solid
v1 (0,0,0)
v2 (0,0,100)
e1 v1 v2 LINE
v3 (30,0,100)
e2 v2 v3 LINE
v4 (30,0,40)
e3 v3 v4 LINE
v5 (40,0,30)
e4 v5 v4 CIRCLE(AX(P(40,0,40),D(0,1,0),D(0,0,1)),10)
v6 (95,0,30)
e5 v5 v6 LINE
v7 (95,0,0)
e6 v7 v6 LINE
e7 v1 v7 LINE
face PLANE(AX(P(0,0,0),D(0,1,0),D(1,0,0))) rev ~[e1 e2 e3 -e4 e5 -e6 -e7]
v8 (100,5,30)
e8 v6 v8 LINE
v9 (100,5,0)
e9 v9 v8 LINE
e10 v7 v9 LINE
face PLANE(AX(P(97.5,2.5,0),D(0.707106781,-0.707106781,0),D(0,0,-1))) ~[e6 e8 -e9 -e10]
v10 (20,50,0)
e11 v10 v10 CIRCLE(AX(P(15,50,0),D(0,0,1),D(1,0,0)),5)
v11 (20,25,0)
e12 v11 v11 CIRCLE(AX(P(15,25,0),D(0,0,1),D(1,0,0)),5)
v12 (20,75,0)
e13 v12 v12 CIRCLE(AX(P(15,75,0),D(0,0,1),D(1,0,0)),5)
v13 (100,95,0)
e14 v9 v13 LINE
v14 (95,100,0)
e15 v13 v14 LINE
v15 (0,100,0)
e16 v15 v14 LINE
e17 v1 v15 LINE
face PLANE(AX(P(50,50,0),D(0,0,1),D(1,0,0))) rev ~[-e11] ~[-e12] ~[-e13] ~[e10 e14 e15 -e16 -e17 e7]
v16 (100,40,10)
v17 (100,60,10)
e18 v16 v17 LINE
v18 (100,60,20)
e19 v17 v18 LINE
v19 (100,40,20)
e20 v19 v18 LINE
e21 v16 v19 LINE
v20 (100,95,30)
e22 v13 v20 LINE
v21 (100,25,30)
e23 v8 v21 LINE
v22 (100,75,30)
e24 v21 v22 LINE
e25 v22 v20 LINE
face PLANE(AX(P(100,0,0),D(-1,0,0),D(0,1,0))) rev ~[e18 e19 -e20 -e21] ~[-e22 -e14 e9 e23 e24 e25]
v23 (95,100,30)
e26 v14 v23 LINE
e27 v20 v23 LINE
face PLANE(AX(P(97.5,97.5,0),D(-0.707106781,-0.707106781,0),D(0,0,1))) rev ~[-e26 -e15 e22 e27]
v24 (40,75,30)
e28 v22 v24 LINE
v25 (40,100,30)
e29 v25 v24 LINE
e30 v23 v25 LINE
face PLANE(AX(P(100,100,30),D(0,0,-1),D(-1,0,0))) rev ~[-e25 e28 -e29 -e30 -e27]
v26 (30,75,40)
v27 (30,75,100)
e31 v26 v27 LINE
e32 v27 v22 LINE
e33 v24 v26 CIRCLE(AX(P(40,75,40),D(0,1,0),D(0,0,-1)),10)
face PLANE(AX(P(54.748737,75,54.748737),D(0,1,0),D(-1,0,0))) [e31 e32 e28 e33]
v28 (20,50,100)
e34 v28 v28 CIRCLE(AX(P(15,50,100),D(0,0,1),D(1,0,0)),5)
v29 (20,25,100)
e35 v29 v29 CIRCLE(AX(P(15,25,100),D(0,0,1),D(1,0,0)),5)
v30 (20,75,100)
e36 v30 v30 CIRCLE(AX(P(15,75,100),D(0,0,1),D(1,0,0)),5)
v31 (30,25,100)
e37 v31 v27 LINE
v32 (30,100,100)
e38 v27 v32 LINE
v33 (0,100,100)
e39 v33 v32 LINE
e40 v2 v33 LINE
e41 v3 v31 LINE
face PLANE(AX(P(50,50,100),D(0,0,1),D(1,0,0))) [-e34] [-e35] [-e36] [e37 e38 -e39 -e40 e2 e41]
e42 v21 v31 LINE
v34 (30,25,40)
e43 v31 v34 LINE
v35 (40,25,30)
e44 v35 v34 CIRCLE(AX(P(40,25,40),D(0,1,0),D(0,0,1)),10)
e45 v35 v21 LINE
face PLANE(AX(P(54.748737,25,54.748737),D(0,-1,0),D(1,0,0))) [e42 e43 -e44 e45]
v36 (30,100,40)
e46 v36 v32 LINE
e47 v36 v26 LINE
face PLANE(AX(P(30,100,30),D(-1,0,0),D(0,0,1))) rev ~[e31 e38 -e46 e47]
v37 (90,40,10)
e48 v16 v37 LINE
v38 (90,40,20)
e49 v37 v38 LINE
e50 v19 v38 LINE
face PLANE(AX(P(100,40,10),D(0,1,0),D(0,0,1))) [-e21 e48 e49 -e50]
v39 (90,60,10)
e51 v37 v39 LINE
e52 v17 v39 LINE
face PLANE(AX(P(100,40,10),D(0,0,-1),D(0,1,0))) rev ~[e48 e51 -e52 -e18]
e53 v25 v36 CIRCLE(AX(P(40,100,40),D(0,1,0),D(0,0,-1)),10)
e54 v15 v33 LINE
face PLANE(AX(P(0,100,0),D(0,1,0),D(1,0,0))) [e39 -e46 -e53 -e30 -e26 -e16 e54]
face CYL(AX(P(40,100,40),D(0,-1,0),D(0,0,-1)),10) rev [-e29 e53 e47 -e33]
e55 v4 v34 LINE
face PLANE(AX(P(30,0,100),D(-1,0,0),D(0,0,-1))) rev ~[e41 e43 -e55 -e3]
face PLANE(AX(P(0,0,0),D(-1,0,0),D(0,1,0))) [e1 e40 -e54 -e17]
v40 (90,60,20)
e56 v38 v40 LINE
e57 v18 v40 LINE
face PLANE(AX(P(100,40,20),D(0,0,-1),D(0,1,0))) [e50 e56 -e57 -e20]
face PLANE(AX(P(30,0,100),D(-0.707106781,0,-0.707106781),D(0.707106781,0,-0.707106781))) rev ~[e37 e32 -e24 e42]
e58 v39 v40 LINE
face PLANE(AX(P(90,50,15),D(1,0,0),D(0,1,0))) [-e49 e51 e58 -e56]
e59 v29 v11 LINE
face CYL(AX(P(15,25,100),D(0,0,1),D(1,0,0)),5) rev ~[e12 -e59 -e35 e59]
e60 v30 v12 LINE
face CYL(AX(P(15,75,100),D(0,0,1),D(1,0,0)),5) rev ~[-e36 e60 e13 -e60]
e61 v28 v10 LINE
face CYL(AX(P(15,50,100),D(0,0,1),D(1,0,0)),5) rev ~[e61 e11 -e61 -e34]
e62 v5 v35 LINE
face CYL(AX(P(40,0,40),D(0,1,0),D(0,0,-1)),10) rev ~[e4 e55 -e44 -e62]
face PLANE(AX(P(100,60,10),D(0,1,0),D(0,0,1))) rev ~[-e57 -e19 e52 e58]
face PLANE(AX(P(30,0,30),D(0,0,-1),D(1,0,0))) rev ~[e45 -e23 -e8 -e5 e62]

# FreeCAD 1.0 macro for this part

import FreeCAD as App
import Part
import Sketcher
from FreeCAD import Vector


def edges_at(feature, points):
    """Names of the edges that pass closest to the given points."""
    edges = feature.Shape.Edges
    near = lambda p: min(range(len(edges)), key=lambda i: edges[i].distToShape(Part.Vertex(*p))[0])
    return sorted({f"Edge{near(p) + 1}" for p in points})


def add_polygon(sketch, points):
    """Adds a closed chain of lines whose ends are joined by coincident constraints."""
    first, n = sketch.GeometryCount, len(points)
    for a, b in zip(points, points[1:] + points[:1]):
        sketch.addGeometry(Part.LineSegment(App.Vector(*a, 0), App.Vector(*b, 0)), False)
    for i in range(n):
        sketch.addConstraint(Sketcher.Constraint("Coincident", first + i, 2, first + (i + 1) % n, 1))

doc = App.newDocument("Part")
body = doc.addObject("PartDesign::Body", "Body")

sketch1 = body.newObject("Sketcher::SketchObject", "Sketch")
sketch1.AttachmentSupport = (doc.getObject("XY_Plane"), [""])
sketch1.MapMode = "FlatFace"
add_polygon(sketch1, [(0, 100), (0, 0), (100, 0), (100, 100)])
sketch1.addConstraint(Sketcher.Constraint("Vertical", 0))
sketch1.addConstraint(Sketcher.Constraint("Horizontal", 1))
sketch1.addConstraint(Sketcher.Constraint("Vertical", 2))
sketch1.addConstraint(Sketcher.Constraint("Horizontal", 3))
sketch1.addConstraint(Sketcher.Constraint("Coincident", 0, 2, -1, 1))
sketch1.addConstraint(Sketcher.Constraint("Equal", 3, 0))
sketch1.addConstraint(Sketcher.Constraint("DistanceX", 1, 1, 1, 2, 100.0))
pad1 = body.newObject("PartDesign::Pad", "Pad")
pad1.Profile = sketch1
pad1.Length = 100

sketch2 = body.newObject("Sketcher::SketchObject", "Sketch001")
sketch2.AttachmentSupport = (doc.getObject("YZ_Plane"), [""])
sketch2.MapMode = "FlatFace"
sketch2.AttachmentOffset = App.Placement(Vector(0, 0, 100), App.Rotation())
add_polygon(sketch2, [(40, 20), (40, 10), (60, 10), (60, 20)])
sketch2.addConstraint(Sketcher.Constraint("Vertical", 0))
sketch2.addConstraint(Sketcher.Constraint("Horizontal", 1))
sketch2.addConstraint(Sketcher.Constraint("Vertical", 2))
sketch2.addConstraint(Sketcher.Constraint("Horizontal", 3))
sketch2.addConstraint(Sketcher.Constraint("DistanceX", 1, 1, 1, 2, 20.0))
sketch2.addConstraint(Sketcher.Constraint("DistanceY", 0, 2, 0, 1, 10.0))
sketch2.addConstraint(Sketcher.Constraint("DistanceX", -1, 1, 0, 2, 40.0))
sketch2.addConstraint(Sketcher.Constraint("DistanceY", -1, 1, 0, 2, 10.0))
pocket1 = body.newObject("PartDesign::Pocket", "Pocket")
pocket1.Profile = sketch2
pocket1.Length = 10

sketch3 = body.newObject("Sketcher::SketchObject", "Sketch002")
sketch3.AttachmentSupport = (doc.getObject("XY_Plane"), [""])
sketch3.MapMode = "FlatFace"
sketch3.AttachmentOffset = App.Placement(Vector(0, 0, 100), App.Rotation())
sketch3.addGeometry(Part.Circle(Vector(15, 75, 0), Vector(0, 0, 1), 5), False)
sketch3.addGeometry(Part.Circle(Vector(15, 50, 0), Vector(0, 0, 1), 5), False)
sketch3.addGeometry(Part.Circle(Vector(15, 25, 0), Vector(0, 0, 1), 5), False)
sketch3.addConstraint(Sketcher.Constraint("Equal", 0, 1))
sketch3.addConstraint(Sketcher.Constraint("Equal", 1, 2))
sketch3.addConstraint(Sketcher.Constraint("Vertical", 0, 3, 1, 3))
sketch3.addConstraint(Sketcher.Constraint("Vertical", 1, 3, 2, 3))
sketch3.addConstraint(Sketcher.Constraint("Diameter", 0, 10.0))
sketch3.addConstraint(Sketcher.Constraint("DistanceX", -1, 1, 0, 3, 15.0))
sketch3.addConstraint(Sketcher.Constraint("DistanceY", -1, 1, 0, 3, 75.0))
sketch3.addConstraint(Sketcher.Constraint("DistanceY", -1, 1, 1, 3, 50.0))
sketch3.addConstraint(Sketcher.Constraint("DistanceY", -1, 1, 2, 3, 25.0))
pocket2 = body.newObject("PartDesign::Pocket", "Pocket001")
pocket2.Profile = sketch3
pocket2.Type = "ThroughAll"

sketch4 = body.newObject("Sketcher::SketchObject", "Sketch003")
sketch4.AttachmentSupport = (doc.getObject("XZ_Plane"), [""])
sketch4.MapMode = "FlatFace"
add_polygon(sketch4, [(100, 30), (100, 100), (30, 100)])
sketch4.addConstraint(Sketcher.Constraint("Vertical", 0))
sketch4.addConstraint(Sketcher.Constraint("Horizontal", 1))
sketch4.addConstraint(Sketcher.Constraint("Equal", 1, 0))
sketch4.addConstraint(Sketcher.Constraint("DistanceX", 1, 2, 1, 1, 70.0))
sketch4.addConstraint(Sketcher.Constraint("DistanceX", -1, 1, 0, 2, 100.0))
sketch4.addConstraint(Sketcher.Constraint("DistanceY", -1, 1, 0, 2, 100.0))
pocket3 = body.newObject("PartDesign::Pocket", "Pocket002")
pocket3.Profile = sketch4
pocket3.Type = "ThroughAll"

sketch5 = body.newObject("Sketcher::SketchObject", "Sketch004")
sketch5.AttachmentSupport = (doc.getObject("XZ_Plane"), [""])
sketch5.MapMode = "FlatFace"
add_polygon(sketch5, [(100, 30), (30, 100), (30, 30)])
sketch5.addConstraint(Sketcher.Constraint("Vertical", 1))
sketch5.addConstraint(Sketcher.Constraint("Horizontal", 2))
sketch5.addConstraint(Sketcher.Constraint("Equal", 2, 1))
sketch5.addConstraint(Sketcher.Constraint("DistanceX", 2, 1, 2, 2, 70.0))
sketch5.addConstraint(Sketcher.Constraint("DistanceX", -1, 1, 0, 2, 30.0))
sketch5.addConstraint(Sketcher.Constraint("DistanceY", -1, 1, 0, 2, 100.0))
pocket4 = body.newObject("PartDesign::Pocket", "Pocket003")
pocket4.Profile = sketch5
pocket4.Length = 25

sketch6 = body.newObject("Sketcher::SketchObject", "Sketch005")
sketch6.AttachmentSupport = (doc.getObject("XZ_Plane"), [""])
sketch6.MapMode = "FlatFace"
sketch6.AttachmentOffset = App.Placement(Vector(0, 0, -100), App.Rotation())
add_polygon(sketch6, [(30, 100), (100, 30), (30, 30)])
sketch6.addConstraint(Sketcher.Constraint("Horizontal", 1))
sketch6.addConstraint(Sketcher.Constraint("Vertical", 2))
sketch6.addConstraint(Sketcher.Constraint("Equal", 1, 2))
sketch6.addConstraint(Sketcher.Constraint("DistanceX", 1, 2, 1, 1, 70.0))
sketch6.addConstraint(Sketcher.Constraint("DistanceX", -1, 1, 0, 2, 100.0))
sketch6.addConstraint(Sketcher.Constraint("DistanceY", -1, 1, 0, 2, 30.0))
pocket5 = body.newObject("PartDesign::Pocket", "Pocket004")
pocket5.Profile = sketch6
pocket5.Length = 25
pocket5.Reversed = True
doc.recompute()

fillet = body.newObject("PartDesign::Fillet", "Fillet")
fillet.Base = (pocket5, edges_at(pocket5, [(30, 12.5, 30), (30, 87.5, 30)]))
fillet.Radius = 10
doc.recompute()

chamfer = body.newObject("PartDesign::Chamfer", "Chamfer")
chamfer.Base = (fillet, edges_at(fillet, [(100, 0, 15), (100, 100, 15)]))
chamfer.Size = 5

doc.recompute()
